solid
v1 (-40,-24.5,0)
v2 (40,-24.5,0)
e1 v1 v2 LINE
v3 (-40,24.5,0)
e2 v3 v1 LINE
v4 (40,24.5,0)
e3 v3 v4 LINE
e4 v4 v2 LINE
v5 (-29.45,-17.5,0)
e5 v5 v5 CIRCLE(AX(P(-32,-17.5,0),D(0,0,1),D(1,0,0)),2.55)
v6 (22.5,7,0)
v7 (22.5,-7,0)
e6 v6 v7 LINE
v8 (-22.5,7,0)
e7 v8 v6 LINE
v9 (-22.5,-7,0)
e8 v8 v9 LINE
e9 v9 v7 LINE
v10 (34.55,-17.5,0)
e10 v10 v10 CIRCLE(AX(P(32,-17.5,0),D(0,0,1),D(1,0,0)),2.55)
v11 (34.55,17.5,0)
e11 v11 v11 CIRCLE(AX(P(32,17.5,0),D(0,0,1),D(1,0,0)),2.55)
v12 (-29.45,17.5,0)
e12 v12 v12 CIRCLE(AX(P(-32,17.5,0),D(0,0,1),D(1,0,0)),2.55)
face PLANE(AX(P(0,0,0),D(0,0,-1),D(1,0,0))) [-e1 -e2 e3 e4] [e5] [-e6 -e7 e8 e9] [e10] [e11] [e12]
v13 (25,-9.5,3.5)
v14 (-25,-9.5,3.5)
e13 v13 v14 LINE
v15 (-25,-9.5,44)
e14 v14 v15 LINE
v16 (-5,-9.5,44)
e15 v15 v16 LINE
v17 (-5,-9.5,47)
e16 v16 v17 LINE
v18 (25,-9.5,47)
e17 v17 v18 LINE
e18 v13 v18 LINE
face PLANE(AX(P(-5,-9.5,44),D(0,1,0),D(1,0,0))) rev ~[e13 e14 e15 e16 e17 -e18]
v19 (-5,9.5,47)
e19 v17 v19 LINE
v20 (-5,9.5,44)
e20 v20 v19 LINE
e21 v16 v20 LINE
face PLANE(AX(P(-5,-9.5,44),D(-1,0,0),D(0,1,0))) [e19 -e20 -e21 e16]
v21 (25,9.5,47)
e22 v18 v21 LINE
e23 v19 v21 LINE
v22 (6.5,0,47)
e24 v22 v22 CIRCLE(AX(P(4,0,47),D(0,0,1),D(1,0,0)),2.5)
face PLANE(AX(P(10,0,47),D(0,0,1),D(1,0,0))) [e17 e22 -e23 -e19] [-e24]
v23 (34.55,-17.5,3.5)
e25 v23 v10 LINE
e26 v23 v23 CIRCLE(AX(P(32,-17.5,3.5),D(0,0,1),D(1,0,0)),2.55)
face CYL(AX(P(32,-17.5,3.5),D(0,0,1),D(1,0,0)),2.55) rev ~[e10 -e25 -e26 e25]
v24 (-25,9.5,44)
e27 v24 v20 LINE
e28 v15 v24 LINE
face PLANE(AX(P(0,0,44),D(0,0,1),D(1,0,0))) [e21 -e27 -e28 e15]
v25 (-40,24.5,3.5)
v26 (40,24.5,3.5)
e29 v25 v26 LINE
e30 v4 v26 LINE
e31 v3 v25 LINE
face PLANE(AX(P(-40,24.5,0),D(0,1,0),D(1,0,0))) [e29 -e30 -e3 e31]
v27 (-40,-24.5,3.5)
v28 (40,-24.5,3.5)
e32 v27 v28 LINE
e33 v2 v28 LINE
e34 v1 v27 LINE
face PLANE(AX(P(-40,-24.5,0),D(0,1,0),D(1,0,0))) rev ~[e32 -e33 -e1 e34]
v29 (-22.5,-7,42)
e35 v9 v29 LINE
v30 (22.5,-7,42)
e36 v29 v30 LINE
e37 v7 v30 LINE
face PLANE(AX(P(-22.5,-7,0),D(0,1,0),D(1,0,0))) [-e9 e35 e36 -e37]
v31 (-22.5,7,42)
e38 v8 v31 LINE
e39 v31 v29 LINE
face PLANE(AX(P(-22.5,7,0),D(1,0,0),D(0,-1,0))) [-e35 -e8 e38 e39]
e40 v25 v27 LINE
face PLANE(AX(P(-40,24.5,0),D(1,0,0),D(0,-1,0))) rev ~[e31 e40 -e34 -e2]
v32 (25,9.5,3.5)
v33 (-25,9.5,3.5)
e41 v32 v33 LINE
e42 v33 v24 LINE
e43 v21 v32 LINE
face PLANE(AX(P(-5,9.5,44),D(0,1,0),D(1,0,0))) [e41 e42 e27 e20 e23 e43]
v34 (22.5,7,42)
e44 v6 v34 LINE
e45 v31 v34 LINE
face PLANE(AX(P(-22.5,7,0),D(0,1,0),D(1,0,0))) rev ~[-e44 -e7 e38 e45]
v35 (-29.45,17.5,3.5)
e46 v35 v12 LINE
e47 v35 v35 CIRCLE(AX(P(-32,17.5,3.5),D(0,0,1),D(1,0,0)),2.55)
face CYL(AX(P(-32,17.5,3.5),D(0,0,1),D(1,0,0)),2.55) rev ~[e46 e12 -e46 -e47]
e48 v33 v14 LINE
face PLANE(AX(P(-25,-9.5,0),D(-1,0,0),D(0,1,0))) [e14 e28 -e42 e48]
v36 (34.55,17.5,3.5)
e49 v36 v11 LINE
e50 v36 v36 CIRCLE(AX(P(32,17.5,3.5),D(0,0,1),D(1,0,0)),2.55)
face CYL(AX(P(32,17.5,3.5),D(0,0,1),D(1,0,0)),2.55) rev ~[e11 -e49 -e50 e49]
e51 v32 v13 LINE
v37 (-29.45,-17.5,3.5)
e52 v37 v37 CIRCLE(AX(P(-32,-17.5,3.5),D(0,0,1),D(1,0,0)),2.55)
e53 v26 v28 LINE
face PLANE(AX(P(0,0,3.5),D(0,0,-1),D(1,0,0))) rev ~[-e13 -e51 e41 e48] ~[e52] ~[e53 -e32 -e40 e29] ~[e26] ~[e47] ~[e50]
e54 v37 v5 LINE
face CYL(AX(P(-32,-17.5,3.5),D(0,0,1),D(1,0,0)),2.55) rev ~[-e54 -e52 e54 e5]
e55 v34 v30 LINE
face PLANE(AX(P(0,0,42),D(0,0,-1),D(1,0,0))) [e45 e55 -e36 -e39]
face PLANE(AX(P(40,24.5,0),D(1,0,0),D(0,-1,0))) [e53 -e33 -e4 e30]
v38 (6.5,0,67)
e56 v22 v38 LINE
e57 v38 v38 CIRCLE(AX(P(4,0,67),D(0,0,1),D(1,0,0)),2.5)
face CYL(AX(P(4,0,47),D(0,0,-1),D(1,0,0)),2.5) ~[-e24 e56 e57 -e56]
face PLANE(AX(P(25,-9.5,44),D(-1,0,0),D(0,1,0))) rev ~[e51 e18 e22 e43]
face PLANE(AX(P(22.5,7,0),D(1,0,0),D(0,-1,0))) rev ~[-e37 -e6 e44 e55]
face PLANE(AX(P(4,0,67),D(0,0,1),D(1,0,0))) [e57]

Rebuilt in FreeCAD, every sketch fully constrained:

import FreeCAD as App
import Part
import Sketcher


def add_polygon(sketch, points):
    """Adds a closed chain of lines whose ends are joined by coincident constraints."""
    first, n = sketch.GeometryCount, len(points)
    for a, b in zip(points, points[1:] + points[:1]):
        sketch.addGeometry(Part.LineSegment(App.Vector(*a, 0), App.Vector(*b, 0)), False)
    for i in range(n):
        sketch.addConstraint(Sketcher.Constraint("Coincident", first + i, 2, first + (i + 1) % n, 1))

doc = App.newDocument("Part")
body = doc.addObject("PartDesign::Body", "Body")

sketch1 = doc.addObject("Sketcher::SketchObject", "Sketch")
body.addObject(sketch1)
sketch1.AttachmentSupport = (doc.XY_Plane, [""])
sketch1.MapMode = "FlatFace"
add_polygon(sketch1, [(-25, 10), (-25, -10), (25, -10), (25, 10)])
sketch1.addConstraint([
    Sketcher.Constraint("Vertical", 0),
    Sketcher.Constraint("Horizontal", 1),
    Sketcher.Constraint("Vertical", 2),
    Sketcher.Constraint("Horizontal", 3),
    Sketcher.Constraint("Symmetric", 0, 2, 2, 2, -1, 1),
    Sketcher.Constraint("DistanceX", 1, 1, 1, 2, 50.0),
    Sketcher.Constraint("DistanceY", 0, 2, 0, 1, 19.0),
])
pad1 = doc.addObject("PartDesign::Pad", "Pad")
body.addObject(pad1)
pad1.Profile = sketch1
pad1.Length = 44

sketch2 = doc.addObject("Sketcher::SketchObject", "Sketch001")
body.addObject(sketch2)
sketch2.AttachmentSupport = (doc.XY_Plane, [""])
sketch2.MapMode = "FlatFace"
sketch2.AttachmentOffset = App.Placement(App.Vector(0, 0, 44), App.Rotation())
add_polygon(sketch2, [(-5, 10), (-5, -10), (25, -10), (25, 10)])
sketch2.addConstraint([
    Sketcher.Constraint("Vertical", 0),
    Sketcher.Constraint("Horizontal", 1),
    Sketcher.Constraint("Vertical", 2),
    Sketcher.Constraint("Horizontal", 3),
    Sketcher.Constraint("DistanceX", 1, 1, 1, 2, 30.0),
    Sketcher.Constraint("DistanceY", 0, 2, 0, 1, 19.0),
    Sketcher.Constraint("DistanceX", 0, 2, -1, 1, 5.0),
    Sketcher.Constraint("DistanceY", 0, 2, -1, 1, 9.5),
])
pad2 = doc.addObject("PartDesign::Pad", "Pad001")
body.addObject(pad2)
pad2.Profile = sketch2
pad2.Length = 3

sketch3 = doc.addObject("Sketcher::SketchObject", "Sketch002")
body.addObject(sketch3)
sketch3.AttachmentSupport = (doc.XY_Plane, [""])
sketch3.MapMode = "FlatFace"
sketch3.AttachmentOffset = App.Placement(App.Vector(0, 0, 47), App.Rotation())
sketch3.addGeometry(Part.Circle(App.Vector(4, 0, 0), App.Vector(0, 0, 1), 2.5), False)
sketch3.addConstraint([
    Sketcher.Constraint("PointOnObject", 0, 3, -1),
    Sketcher.Constraint("Diameter", 0, 5.0),
    Sketcher.Constraint("DistanceX", -1, 1, 0, 3, 4.0),
])
pad3 = doc.addObject("PartDesign::Pad", "Pad002")
body.addObject(pad3)
pad3.Profile = sketch3
pad3.Length = 20

sketch4 = doc.addObject("Sketcher::SketchObject", "Sketch003")
body.addObject(sketch4)
sketch4.AttachmentSupport = (doc.XY_Plane, [""])
sketch4.MapMode = "FlatFace"
add_polygon(sketch4, [(-40, -24), (-40, 24), (40, 24), (40, -24)])
sketch4.addConstraint([
    Sketcher.Constraint("Vertical", 0),
    Sketcher.Constraint("Horizontal", 1),
    Sketcher.Constraint("Vertical", 2),
    Sketcher.Constraint("Horizontal", 3),
    Sketcher.Constraint("Symmetric", 0, 2, 2, 2, -1, 1),
    Sketcher.Constraint("DistanceX", 1, 1, 1, 2, 80.0),
    Sketcher.Constraint("DistanceY", 0, 1, 0, 2, 49.0),
])
pad4 = doc.addObject("PartDesign::Pad", "Pad003")
body.addObject(pad4)
pad4.Profile = sketch4
pad4.Length = 3.5

sketch5 = doc.addObject("Sketcher::SketchObject", "Sketch004")
body.addObject(sketch5)
sketch5.AttachmentSupport = (doc.XY_Plane, [""])
sketch5.MapMode = "FlatFace"
sketch5.AttachmentOffset = App.Placement(App.Vector(0, 0, 3.5), App.Rotation())
sketch5.addGeometry([
    Part.Circle(App.Vector(-32, 17.5, 0), App.Vector(0, 0, 1), 2.5),
    Part.Circle(App.Vector(32, 17.5, 0), App.Vector(0, 0, 1), 2.5),
    Part.Circle(App.Vector(-32, -17.5, 0), App.Vector(0, 0, 1), 2.5),
    Part.Circle(App.Vector(32, -17.5, 0), App.Vector(0, 0, 1), 2.5),
], False)
sketch5.addConstraint([
    Sketcher.Constraint("Equal", 0, 1),
    Sketcher.Constraint("Equal", 1, 2),
    Sketcher.Constraint("Equal", 2, 3),
    Sketcher.Constraint("Symmetric", 1, 3, 2, 3, -1, 1),
    Sketcher.Constraint("Symmetric", 0, 3, 3, 3, -1, 1),
    Sketcher.Constraint("Symmetric", 0, 3, 1, 3, -2),
    Sketcher.Constraint("Diameter", 0, 5.1),
    Sketcher.Constraint("DistanceX", 0, 3, -1, 1, 32.0),
    Sketcher.Constraint("DistanceY", 2, 3, 0, 3, 35.0),
])
pocket1 = doc.addObject("PartDesign::Pocket", "Pocket")
body.addObject(pocket1)
pocket1.Profile = sketch5
pocket1.Type = "ThroughAll"

sketch6 = doc.addObject("Sketcher::SketchObject", "Sketch005")
body.addObject(sketch6)
sketch6.AttachmentSupport = (doc.XY_Plane, [""])
sketch6.MapMode = "FlatFace"
add_polygon(sketch6, [(-22, -7), (-22, 7), (22, 7), (22, -7)])
sketch6.addConstraint([
    Sketcher.Constraint("Vertical", 0),
    Sketcher.Constraint("Horizontal", 1),
    Sketcher.Constraint("Vertical", 2),
    Sketcher.Constraint("Horizontal", 3),
    Sketcher.Constraint("Symmetric", 0, 2, 2, 2, -1, 1),
    Sketcher.Constraint("DistanceX", 1, 1, 1, 2, 45.0),
    Sketcher.Constraint("DistanceY", 0, 1, 0, 2, 14.0),
])
pocket2 = doc.addObject("PartDesign::Pocket", "Pocket001")
body.addObject(pocket2)
pocket2.Profile = sketch6
pocket2.Length = 42
pocket2.Reversed = True

doc.recompute()
